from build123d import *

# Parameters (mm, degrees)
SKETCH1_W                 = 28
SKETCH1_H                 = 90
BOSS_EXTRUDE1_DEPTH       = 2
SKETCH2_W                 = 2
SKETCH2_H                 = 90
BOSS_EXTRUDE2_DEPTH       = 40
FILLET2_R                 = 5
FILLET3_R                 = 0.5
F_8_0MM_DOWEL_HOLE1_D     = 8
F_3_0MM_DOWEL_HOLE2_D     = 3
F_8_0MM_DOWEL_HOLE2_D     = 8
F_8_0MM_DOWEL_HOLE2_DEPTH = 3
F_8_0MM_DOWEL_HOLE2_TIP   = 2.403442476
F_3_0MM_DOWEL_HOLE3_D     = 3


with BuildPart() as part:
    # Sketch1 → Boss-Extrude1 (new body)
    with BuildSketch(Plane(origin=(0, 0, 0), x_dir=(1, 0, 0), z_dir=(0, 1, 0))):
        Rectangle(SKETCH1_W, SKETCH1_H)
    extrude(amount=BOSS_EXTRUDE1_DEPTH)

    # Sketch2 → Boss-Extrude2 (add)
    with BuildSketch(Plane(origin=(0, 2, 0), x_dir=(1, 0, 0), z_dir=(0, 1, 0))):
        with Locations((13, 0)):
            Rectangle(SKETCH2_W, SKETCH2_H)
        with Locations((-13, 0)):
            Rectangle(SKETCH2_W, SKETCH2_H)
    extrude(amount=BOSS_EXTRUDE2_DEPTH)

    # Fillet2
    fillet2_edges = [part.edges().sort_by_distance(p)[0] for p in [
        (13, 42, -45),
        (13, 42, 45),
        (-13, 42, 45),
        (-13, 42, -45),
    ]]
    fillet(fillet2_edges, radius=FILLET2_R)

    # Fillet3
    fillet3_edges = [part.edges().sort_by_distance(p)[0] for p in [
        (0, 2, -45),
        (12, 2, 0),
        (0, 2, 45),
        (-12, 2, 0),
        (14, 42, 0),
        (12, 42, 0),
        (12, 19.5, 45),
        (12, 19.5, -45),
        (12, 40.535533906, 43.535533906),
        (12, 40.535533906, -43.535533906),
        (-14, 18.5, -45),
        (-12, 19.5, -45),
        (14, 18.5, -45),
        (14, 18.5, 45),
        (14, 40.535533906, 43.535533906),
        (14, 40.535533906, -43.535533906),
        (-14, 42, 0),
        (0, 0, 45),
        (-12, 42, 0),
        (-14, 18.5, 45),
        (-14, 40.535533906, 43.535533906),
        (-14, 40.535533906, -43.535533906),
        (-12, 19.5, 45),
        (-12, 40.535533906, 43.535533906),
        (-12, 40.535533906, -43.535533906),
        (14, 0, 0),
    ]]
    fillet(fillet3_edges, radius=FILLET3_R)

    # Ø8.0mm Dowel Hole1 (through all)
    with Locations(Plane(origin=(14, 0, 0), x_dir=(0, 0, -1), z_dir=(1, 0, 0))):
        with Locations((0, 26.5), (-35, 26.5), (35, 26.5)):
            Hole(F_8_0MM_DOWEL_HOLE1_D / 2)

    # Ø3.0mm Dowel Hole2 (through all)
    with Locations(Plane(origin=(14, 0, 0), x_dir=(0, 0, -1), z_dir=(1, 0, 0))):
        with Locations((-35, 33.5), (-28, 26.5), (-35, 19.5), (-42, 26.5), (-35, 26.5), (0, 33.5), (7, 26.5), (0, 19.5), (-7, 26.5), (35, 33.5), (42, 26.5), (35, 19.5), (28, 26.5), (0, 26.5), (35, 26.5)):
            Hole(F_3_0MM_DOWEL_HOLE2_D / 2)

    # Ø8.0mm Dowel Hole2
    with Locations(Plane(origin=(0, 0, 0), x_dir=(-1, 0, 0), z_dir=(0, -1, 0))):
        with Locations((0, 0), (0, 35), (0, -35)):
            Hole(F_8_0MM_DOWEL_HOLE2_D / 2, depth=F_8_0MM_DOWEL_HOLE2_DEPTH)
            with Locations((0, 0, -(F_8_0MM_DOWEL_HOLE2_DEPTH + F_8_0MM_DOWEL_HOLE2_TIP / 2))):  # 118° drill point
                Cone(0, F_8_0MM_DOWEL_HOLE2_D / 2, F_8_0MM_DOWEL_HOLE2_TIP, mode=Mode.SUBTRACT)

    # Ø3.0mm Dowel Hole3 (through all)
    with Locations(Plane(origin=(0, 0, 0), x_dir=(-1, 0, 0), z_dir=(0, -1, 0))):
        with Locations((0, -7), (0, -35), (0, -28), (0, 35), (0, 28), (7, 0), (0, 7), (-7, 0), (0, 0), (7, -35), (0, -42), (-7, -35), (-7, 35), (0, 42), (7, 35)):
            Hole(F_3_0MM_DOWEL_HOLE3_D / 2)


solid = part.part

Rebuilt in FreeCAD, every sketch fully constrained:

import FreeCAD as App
import Part
import Sketcher
from FreeCAD import Vector


def edges_at(feature, points):
    """Names of the edges that pass closest to the given points."""
    edges = feature.Shape.Edges
    near = lambda p: min(range(len(edges)), key=lambda i: edges[i].distToShape(Part.Vertex(*p))[0])
    return sorted({f"Edge{near(p) + 1}" for p in points})


def add_polygon(sketch, points):
    """Adds a closed chain of lines whose ends are joined by coincident constraints."""
    first, n = sketch.GeometryCount, len(points)
    for a, b in zip(points, points[1:] + points[:1]):
        sketch.addGeometry(Part.LineSegment(App.Vector(*a, 0), App.Vector(*b, 0)), False)
    for i in range(n):
        sketch.addConstraint(Sketcher.Constraint("Coincident", first + i, 2, first + (i + 1) % n, 1))

doc = App.newDocument("Part")
params = doc.addObject("Spreadsheet::Sheet", "Params")
for row, (alias, value) in enumerate([
    ("sketch1_width", "28 mm"),
    ("sketch1_height", "90 mm"),
    ("pad1_length", "2 mm"),
    ("sketch2_width", "2 mm"),
    ("sketch2_height", "90 mm"),
    ("pad2_length", "40 mm"),
    ("fillet_radius", "5 mm"),
    ("fillet2_radius", "0.5 mm"),
    ("sketch3_diameter", "8 mm"),
    ("hole_diameter", "8 mm"),
    ("sketch4_diameter", "3 mm"),
    ("hole2_diameter", "3 mm"),
    ("sketch5_diameter", "8 mm"),
    ("hole3_diameter", "8 mm"),
    ("hole3_depth", "3 mm"),
    ("sketch6_diameter", "3 mm"),
    ("hole4_diameter", "3 mm"),
], start=1):
    params.set(f"A{row}", alias)
    params.set(f"B{row}", "=" + value)
    params.setAlias(f"B{row}", alias)

body = doc.addObject("PartDesign::Body", "Body")

# Sketch on XZ plane
sketch1 = body.newObject("Sketcher::SketchObject", "Sketch")
sketch1.AttachmentSupport = (doc.getObject("XZ_Plane"), [""])
sketch1.MapMode = "FlatFace"
add_polygon(sketch1, [(-14, -45), (-14, 45), (14, 45), (14, -45)])  # lines 0-3
sketch1.addConstraint([
    Sketcher.Constraint("Vertical", 0),
    Sketcher.Constraint("Horizontal", 1),
    Sketcher.Constraint("Vertical", 2),
    Sketcher.Constraint("Horizontal", 3),
    Sketcher.Constraint("Symmetric", 0, 2, 2, 2, -1, 1),
    Sketcher.Constraint("DistanceX", 1, 1, 1, 2, 28.0),
    Sketcher.Constraint("DistanceY", 0, 1, 0, 2, 90.0),
])
sketch1.setExpression("Constraints[9]", "Params.sketch1_width")
sketch1.setExpression("Constraints[10]", "Params.sketch1_height")
pad1 = body.newObject("PartDesign::Pad", "Pad")
pad1.Profile = sketch1
pad1.setExpression("Length", "Params.pad1_length")
pad1.Reversed = True

# Sketch on XZ plane
sketch2 = body.newObject("Sketcher::SketchObject", "Sketch001")
sketch2.AttachmentSupport = (doc.getObject("XZ_Plane"), [""])
sketch2.MapMode = "FlatFace"
sketch2.AttachmentOffset = App.Placement(Vector(0, 0, -2), App.Rotation())
add_polygon(sketch2, [(12, -45), (12, 45), (14, 45), (14, -45)])  # lines 0-3
add_polygon(sketch2, [(-14, -45), (-14, 45), (-12, 45), (-12, -45)])  # lines 4-7
sketch2.addConstraint([
    Sketcher.Constraint("Vertical", 0),
    Sketcher.Constraint("Horizontal", 1),
    Sketcher.Constraint("Vertical", 2),
    Sketcher.Constraint("Horizontal", 3),
    Sketcher.Constraint("Vertical", 4),
    Sketcher.Constraint("Horizontal", 5),
    Sketcher.Constraint("Vertical", 6),
    Sketcher.Constraint("Horizontal", 7),
    Sketcher.Constraint("Symmetric", 2, 2, 4, 2, -1, 1),
    Sketcher.Constraint("Symmetric", 0, 2, 6, 2, -1, 1),
    Sketcher.Constraint("Horizontal", 1, 2, 4, 2),
    Sketcher.Constraint("DistanceX", 1, 1, 1, 2, 2.0),
    Sketcher.Constraint("DistanceY", 0, 1, 0, 2, 90.0),
    Sketcher.Constraint("DistanceX", -1, 1, 0, 2, 12.0),
])
sketch2.setExpression("Constraints[19]", "Params.sketch2_width")
sketch2.setExpression("Constraints[20]", "Params.sketch2_height")
pad2 = body.newObject("PartDesign::Pad", "Pad001")
pad2.Profile = sketch2
pad2.setExpression("Length", "Params.pad2_length")
pad2.Reversed = True
doc.recompute()

fillet = body.newObject("PartDesign::Fillet", "Fillet")
fillet.Base = (pad2, edges_at(pad2, [
    (13, 42, -45),
    (13, 42, 45),
    (-13, 42, 45),
    (-13, 42, -45),
]))
fillet.setExpression("Radius", "Params.fillet_radius")
doc.recompute()

fillet2 = body.newObject("PartDesign::Fillet", "Fillet001")
fillet2.Base = (fillet, edges_at(fillet, [
    (0, 2, -45),
    (12, 2, 0),
    (0, 2, 45),
    (-12, 2, 0),
    (14, 42, 0),
    (12, 42, 0),
    (12, 19.5, 45),
    (12, 19.5, -45),
    (12, 40.536, 43.536),
    (12, 40.536, -43.536),
    (-14, 18.5, -45),
    (-12, 19.5, -45),
    (14, 18.5, -45),
    (14, 18.5, 45),
    (14, 40.536, 43.536),
    (14, 40.536, -43.536),
    (-14, 42, 0),
    (0, 0, 45),
    (-12, 42, 0),
    (-14, 18.5, 45),
    (-14, 40.536, 43.536),
    (-14, 40.536, -43.536),
    (-12, 19.5, 45),
    (-12, 40.536, 43.536),
    (-12, 40.536, -43.536),
    (14, 0, 0),
]))
fillet2.setExpression("Radius", "Params.fillet2_radius")

# Sketch on YZ plane
sketch3 = body.newObject("Sketcher::SketchObject", "Sketch002")
sketch3.AttachmentSupport = (doc.getObject("YZ_Plane"), [""])
sketch3.MapMode = "FlatFace"
sketch3.AttachmentOffset = App.Placement(Vector(0, 0, 14), App.Rotation())
sketch3.addGeometry([
    Part.Circle(Vector(26.5, 0, 0), Vector(0, 0, 1), 4),
    Part.Circle(Vector(26.5, 35, 0), Vector(0, 0, 1), 4),
    Part.Circle(Vector(26.5, -35, 0), Vector(0, 0, 1), 4),
], False)
sketch3.addConstraint([
    Sketcher.Constraint("Equal", 0, 1),
    Sketcher.Constraint("Equal", 1, 2),
    Sketcher.Constraint("Symmetric", 1, 3, 2, 3, -1),
    Sketcher.Constraint("PointOnObject", 0, 3, -1),
    Sketcher.Constraint("Vertical", 0, 3, 1, 3),
    Sketcher.Constraint("Diameter", 0, 8.0),
    Sketcher.Constraint("DistanceY", -1, 1, 1, 3, 35.0),
    Sketcher.Constraint("DistanceX", -1, 1, 0, 3, 26.5),
])
sketch3.setExpression("Constraints[5]", "Params.sketch3_diameter")
doc.recompute()
hole = body.newObject("PartDesign::Hole", "Hole")
hole.Profile = sketch3
hole.ThreadType = "None"
hole.setExpression("Diameter", "Params.hole_diameter")
hole.DepthType = "ThroughAll"

# Sketch on YZ plane
sketch4 = body.newObject("Sketcher::SketchObject", "Sketch003")
sketch4.AttachmentSupport = (doc.getObject("YZ_Plane"), [""])
sketch4.MapMode = "FlatFace"
sketch4.AttachmentOffset = App.Placement(Vector(0, 0, 14), App.Rotation())
sketch4.addGeometry([
    Part.Circle(Vector(33.5, 35, 0), Vector(0, 0, 1), 1.5),  # 0
    Part.Circle(Vector(26.5, 28, 0), Vector(0, 0, 1), 1.5),  # 1
    Part.Circle(Vector(19.5, 35, 0), Vector(0, 0, 1), 1.5),  # 2
    Part.Circle(Vector(26.5, 42, 0), Vector(0, 0, 1), 1.5),  # 3
    Part.Circle(Vector(26.5, 35, 0), Vector(0, 0, 1), 1.5),  # 4
    Part.Circle(Vector(33.5, 0, 0), Vector(0, 0, 1), 1.5),  # 5
    Part.Circle(Vector(26.5, -7, 0), Vector(0, 0, 1), 1.5),  # 6
    Part.Circle(Vector(19.5, 0, 0), Vector(0, 0, 1), 1.5),  # 7
    Part.Circle(Vector(26.5, 7, 0), Vector(0, 0, 1), 1.5),  # 8
    Part.Circle(Vector(33.5, -35, 0), Vector(0, 0, 1), 1.5),  # 9
    Part.Circle(Vector(26.5, -42, 0), Vector(0, 0, 1), 1.5),  # 10
    Part.Circle(Vector(19.5, -35, 0), Vector(0, 0, 1), 1.5),  # 11
    Part.Circle(Vector(26.5, -28, 0), Vector(0, 0, 1), 1.5),  # 12
    Part.Circle(Vector(26.5, 0, 0), Vector(0, 0, 1), 1.5),  # 13
    Part.Circle(Vector(26.5, -35, 0), Vector(0, 0, 1), 1.5),  # 14
], False)
sketch4.addConstraint([
    Sketcher.Constraint("Equal", 0, 1),
    Sketcher.Constraint("Equal", 1, 2),
    Sketcher.Constraint("Equal", 2, 3),
    Sketcher.Constraint("Equal", 3, 4),
    Sketcher.Constraint("Equal", 4, 5),
    Sketcher.Constraint("Equal", 5, 6),
    Sketcher.Constraint("Equal", 6, 7),
    Sketcher.Constraint("Equal", 7, 8),
    Sketcher.Constraint("Equal", 8, 9),
    Sketcher.Constraint("Equal", 9, 10),
    Sketcher.Constraint("Equal", 10, 11),
    Sketcher.Constraint("Equal", 11, 12),
    Sketcher.Constraint("Equal", 12, 13),
    Sketcher.Constraint("Equal", 13, 14),
    Sketcher.Constraint("Symmetric", 6, 3, 8, 3, -1),
    Sketcher.Constraint("Symmetric", 0, 3, 9, 3, -1),
    Sketcher.Constraint("Symmetric", 3, 3, 10, 3, -1),
    Sketcher.Constraint("Symmetric", 2, 3, 11, 3, -1),
    Sketcher.Constraint("Symmetric", 1, 3, 12, 3, -1),
    Sketcher.Constraint("Symmetric", 4, 3, 14, 3, -1),
    Sketcher.Constraint("PointOnObject", 5, 3, -1),
    Sketcher.Constraint("PointOnObject", 7, 3, -1),
    Sketcher.Constraint("PointOnObject", 13, 3, -1),
    Sketcher.Constraint("Horizontal", 0, 3, 2, 3),
    Sketcher.Constraint("Horizontal", 2, 3, 4, 3),
    Sketcher.Constraint("Vertical", 1, 3, 3, 3),
    Sketcher.Constraint("Vertical", 3, 3, 4, 3),
    Sketcher.Constraint("Vertical", 0, 3, 5, 3),
    Sketcher.Constraint("Vertical", 4, 3, 6, 3),
    Sketcher.Constraint("Vertical", 2, 3, 7, 3),
    Sketcher.Constraint("Vertical", 12, 3, 13, 3),
    Sketcher.Constraint("Diameter", 0, 3.0),
    Sketcher.Constraint("DistanceY", -1, 1, 0, 3, 35.0),
    Sketcher.Constraint("DistanceY", -1, 1, 1, 3, 28.0),
    Sketcher.Constraint("DistanceY", -1, 1, 3, 3, 42.0),
    Sketcher.Constraint("DistanceY", 6, 3, -1, 1, 7.0),
    Sketcher.Constraint("DistanceX", 1, 3, 0, 3, 7.0),
    Sketcher.Constraint("DistanceX", 2, 3, 1, 3, 7.0),
    Sketcher.Constraint("DistanceX", -1, 1, 0, 3, 33.5),
])
sketch4.setExpression("Constraints[31]", "Params.sketch4_diameter")
doc.recompute()
hole2 = body.newObject("PartDesign::Hole", "Hole001")
hole2.Profile = sketch4
hole2.ThreadType = "None"
hole2.setExpression("Diameter", "Params.hole2_diameter")
hole2.DepthType = "ThroughAll"

# Sketch on XZ plane
sketch5 = body.newObject("Sketcher::SketchObject", "Sketch004")
sketch5.AttachmentSupport = (doc.getObject("XZ_Plane"), [""])
sketch5.MapMode = "FlatFace"
sketch5.addGeometry([
    Part.Circle(Vector(0, 0, 0), Vector(0, 0, 1), 4),
    Part.Circle(Vector(0, -35, 0), Vector(0, 0, 1), 4),
    Part.Circle(Vector(0, 35, 0), Vector(0, 0, 1), 4),
], False)
sketch5.addConstraint([
    Sketcher.Constraint("Coincident", 0, 3, -1, 1),
    Sketcher.Constraint("Equal", 0, 1),
    Sketcher.Constraint("Equal", 1, 2),
    Sketcher.Constraint("Symmetric", 1, 3, 2, 3, -1, 1),
    Sketcher.Constraint("PointOnObject", 1, 3, -2),
    Sketcher.Constraint("Diameter", 0, 8.0),
    Sketcher.Constraint("DistanceY", 1, 3, -1, 1, 35.0),
])
sketch5.setExpression("Constraints[5]", "Params.sketch5_diameter")
doc.recompute()
hole3 = body.newObject("PartDesign::Hole", "Hole002")
hole3.Profile = sketch5
hole3.ThreadType = "None"
hole3.setExpression("Diameter", "Params.hole3_diameter")
hole3.DepthType = "Dimension"
hole3.setExpression("Depth", "Params.hole3_depth")
hole3.DrillPoint = "Angled"
hole3.DrillPointAngle = 118

# Sketch on XZ plane
sketch6 = body.newObject("Sketcher::SketchObject", "Sketch005")
sketch6.AttachmentSupport = (doc.getObject("XZ_Plane"), [""])
sketch6.MapMode = "FlatFace"
sketch6.addGeometry([
    Part.Circle(Vector(0, 7, 0), Vector(0, 0, 1), 1.5),  # 0
    Part.Circle(Vector(0, 35, 0), Vector(0, 0, 1), 1.5),  # 1
    Part.Circle(Vector(0, 28, 0), Vector(0, 0, 1), 1.5),  # 2
    Part.Circle(Vector(0, -35, 0), Vector(0, 0, 1), 1.5),  # 3
    Part.Circle(Vector(0, -28, 0), Vector(0, 0, 1), 1.5),  # 4
    Part.Circle(Vector(-7, 0, 0), Vector(0, 0, 1), 1.5),  # 5
    Part.Circle(Vector(0, -7, 0), Vector(0, 0, 1), 1.5),  # 6
    Part.Circle(Vector(7, 0, 0), Vector(0, 0, 1), 1.5),  # 7
    Part.Circle(Vector(0, 0, 0), Vector(0, 0, 1), 1.5),  # 8
    Part.Circle(Vector(-7, 35, 0), Vector(0, 0, 1), 1.5),  # 9
    Part.Circle(Vector(0, 42, 0), Vector(0, 0, 1), 1.5),  # 10
    Part.Circle(Vector(7, 35, 0), Vector(0, 0, 1), 1.5),  # 11
    Part.Circle(Vector(7, -35, 0), Vector(0, 0, 1), 1.5),  # 12
    Part.Circle(Vector(0, -42, 0), Vector(0, 0, 1), 1.5),  # 13
    Part.Circle(Vector(-7, -35, 0), Vector(0, 0, 1), 1.5),  # 14
], False)
sketch6.addConstraint([
    Sketcher.Constraint("Coincident", 8, 3, -1, 1),
    Sketcher.Constraint("Equal", 0, 1),
    Sketcher.Constraint("Equal", 1, 2),
    Sketcher.Constraint("Equal", 2, 3),
    Sketcher.Constraint("Equal", 3, 4),
    Sketcher.Constraint("Equal", 4, 5),
    Sketcher.Constraint("Equal", 5, 6),
    Sketcher.Constraint("Equal", 6, 7),
    Sketcher.Constraint("Equal", 7, 8),
    Sketcher.Constraint("Equal", 8, 9),
    Sketcher.Constraint("Equal", 9, 10),
    Sketcher.Constraint("Equal", 10, 11),
    Sketcher.Constraint("Equal", 11, 12),
    Sketcher.Constraint("Equal", 12, 13),
    Sketcher.Constraint("Equal", 13, 14),
    Sketcher.Constraint("Symmetric", 1, 3, 3, 3, -1, 1),
    Sketcher.Constraint("Symmetric", 2, 3, 4, 3, -1, 1),
    Sketcher.Constraint("Symmetric", 0, 3, 6, 3, -1, 1),
    Sketcher.Constraint("Symmetric", 5, 3, 7, 3, -1, 1),
    Sketcher.Constraint("Symmetric", 9, 3, 12, 3, -1, 1),
    Sketcher.Constraint("Symmetric", 10, 3, 13, 3, -1, 1),
    Sketcher.Constraint("Symmetric", 11, 3, 14, 3, -1, 1),
    Sketcher.Constraint("Symmetric", 9, 3, 11, 3, -2),
    Sketcher.Constraint("PointOnObject", 0, 3, -2),
    Sketcher.Constraint("PointOnObject", 1, 3, -2),
    Sketcher.Constraint("PointOnObject", 2, 3, -2),
    Sketcher.Constraint("PointOnObject", 5, 3, -1),
    Sketcher.Constraint("PointOnObject", 10, 3, -2),
    Sketcher.Constraint("Horizontal", 1, 3, 9, 3),
    Sketcher.Constraint("Vertical", 5, 3, 9, 3),
    Sketcher.Constraint("Diameter", 0, 3.0),
    Sketcher.Constraint("DistanceY", -1, 1, 0, 3, 7.0),
    Sketcher.Constraint("DistanceY", -1, 1, 1, 3, 35.0),
    Sketcher.Constraint("DistanceY", -1, 1, 2, 3, 28.0),
    Sketcher.Constraint("DistanceX", 5, 3, -1, 1, 7.0),
    Sketcher.Constraint("DistanceY", -1, 1, 10, 3, 42.0),
])
sketch6.setExpression("Constraints[30]", "Params.sketch6_diameter")
doc.recompute()
hole4 = body.newObject("PartDesign::Hole", "Hole003")
hole4.Profile = sketch6
hole4.ThreadType = "None"
hole4.setExpression("Diameter", "Params.hole4_diameter")
hole4.DepthType = "ThroughAll"

doc.recompute()
